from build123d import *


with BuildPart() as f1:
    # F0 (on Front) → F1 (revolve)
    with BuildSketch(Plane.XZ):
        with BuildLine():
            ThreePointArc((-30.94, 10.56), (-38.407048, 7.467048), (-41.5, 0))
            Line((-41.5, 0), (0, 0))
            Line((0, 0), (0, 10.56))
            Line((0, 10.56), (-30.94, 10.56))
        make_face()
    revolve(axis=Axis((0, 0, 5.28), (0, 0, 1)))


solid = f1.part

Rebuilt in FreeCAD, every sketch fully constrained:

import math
import FreeCAD as App
import Part
import Sketcher
from FreeCAD import Vector
Q = App.Units.Quantity

doc = App.newDocument("Part")
params = doc.addObject("Spreadsheet::Sheet", "Params")
for row, (alias, value) in enumerate([
    ("sketch1_radius", "10.559999 mm"),
    ("sketch1_width", "41.5 mm"),
    ("revolution_angle", "360 deg"),
], start=1):
    params.set(f"A{row}", alias)
    params.set(f"B{row}", "=" + value)
    params.setAlias(f"B{row}", alias)

body = doc.addObject("PartDesign::Body", "Body")

# Sketch on XZ plane
sketch1 = doc.addObject("Sketcher::SketchObject", "Sketch")
body.addObject(sketch1)
sketch1.AttachmentSupport = (doc.XZ_Plane, [""])
sketch1.MapMode = "FlatFace"
sketch1.addGeometry([
    Part.ArcOfCircle(Part.Circle(Vector(-30.940001, 0.000001, 0), Vector(0, 0, 1), 10.559999), math.radians(89.999993), math.radians(180.000007)),
    Part.LineSegment(Vector(-41.5, 0, 0), Vector(0, 0, 0)),
    Part.LineSegment(Vector(0, 0, 0), Vector(0, 10.56, 0)),
    Part.LineSegment(Vector(0, 10.56, 0), Vector(-30.94, 10.56, 0)),
], False)
sketch1.addConstraint([
    Sketcher.Constraint("Coincident", 0, 2, 1, 1),
    Sketcher.Constraint("Coincident", 1, 2, 2, 1),
    Sketcher.Constraint("Coincident", 2, 2, 3, 1),
    Sketcher.Constraint("Tangent", 3, 2, 0, 1),
    Sketcher.Constraint("Horizontal", 1),
    Sketcher.Constraint("Vertical", 2),
    Sketcher.Constraint("Horizontal", 3),
    Sketcher.Constraint("Coincident", 1, 2, -1, 1),
    Sketcher.Constraint("PointOnObject", 0, 3, -1),
    Sketcher.Constraint("Radius", 0, Q("10.559999 mm")),
    Sketcher.Constraint("DistanceX", 1, 1, 1, 2, Q("41.5 mm")),
])
sketch1.setExpression("Constraints[9]", "Params.sketch1_radius")
sketch1.setExpression("Constraints[10]", "Params.sketch1_width")
revolution = doc.addObject("PartDesign::Revolution", "Revolution")
body.addObject(revolution)
revolution.Profile = sketch1
revolution.ReferenceAxis = (sketch1, ["V_Axis"])
revolution.setExpression("Angle", "Params.revolution_angle")

doc.recompute()
